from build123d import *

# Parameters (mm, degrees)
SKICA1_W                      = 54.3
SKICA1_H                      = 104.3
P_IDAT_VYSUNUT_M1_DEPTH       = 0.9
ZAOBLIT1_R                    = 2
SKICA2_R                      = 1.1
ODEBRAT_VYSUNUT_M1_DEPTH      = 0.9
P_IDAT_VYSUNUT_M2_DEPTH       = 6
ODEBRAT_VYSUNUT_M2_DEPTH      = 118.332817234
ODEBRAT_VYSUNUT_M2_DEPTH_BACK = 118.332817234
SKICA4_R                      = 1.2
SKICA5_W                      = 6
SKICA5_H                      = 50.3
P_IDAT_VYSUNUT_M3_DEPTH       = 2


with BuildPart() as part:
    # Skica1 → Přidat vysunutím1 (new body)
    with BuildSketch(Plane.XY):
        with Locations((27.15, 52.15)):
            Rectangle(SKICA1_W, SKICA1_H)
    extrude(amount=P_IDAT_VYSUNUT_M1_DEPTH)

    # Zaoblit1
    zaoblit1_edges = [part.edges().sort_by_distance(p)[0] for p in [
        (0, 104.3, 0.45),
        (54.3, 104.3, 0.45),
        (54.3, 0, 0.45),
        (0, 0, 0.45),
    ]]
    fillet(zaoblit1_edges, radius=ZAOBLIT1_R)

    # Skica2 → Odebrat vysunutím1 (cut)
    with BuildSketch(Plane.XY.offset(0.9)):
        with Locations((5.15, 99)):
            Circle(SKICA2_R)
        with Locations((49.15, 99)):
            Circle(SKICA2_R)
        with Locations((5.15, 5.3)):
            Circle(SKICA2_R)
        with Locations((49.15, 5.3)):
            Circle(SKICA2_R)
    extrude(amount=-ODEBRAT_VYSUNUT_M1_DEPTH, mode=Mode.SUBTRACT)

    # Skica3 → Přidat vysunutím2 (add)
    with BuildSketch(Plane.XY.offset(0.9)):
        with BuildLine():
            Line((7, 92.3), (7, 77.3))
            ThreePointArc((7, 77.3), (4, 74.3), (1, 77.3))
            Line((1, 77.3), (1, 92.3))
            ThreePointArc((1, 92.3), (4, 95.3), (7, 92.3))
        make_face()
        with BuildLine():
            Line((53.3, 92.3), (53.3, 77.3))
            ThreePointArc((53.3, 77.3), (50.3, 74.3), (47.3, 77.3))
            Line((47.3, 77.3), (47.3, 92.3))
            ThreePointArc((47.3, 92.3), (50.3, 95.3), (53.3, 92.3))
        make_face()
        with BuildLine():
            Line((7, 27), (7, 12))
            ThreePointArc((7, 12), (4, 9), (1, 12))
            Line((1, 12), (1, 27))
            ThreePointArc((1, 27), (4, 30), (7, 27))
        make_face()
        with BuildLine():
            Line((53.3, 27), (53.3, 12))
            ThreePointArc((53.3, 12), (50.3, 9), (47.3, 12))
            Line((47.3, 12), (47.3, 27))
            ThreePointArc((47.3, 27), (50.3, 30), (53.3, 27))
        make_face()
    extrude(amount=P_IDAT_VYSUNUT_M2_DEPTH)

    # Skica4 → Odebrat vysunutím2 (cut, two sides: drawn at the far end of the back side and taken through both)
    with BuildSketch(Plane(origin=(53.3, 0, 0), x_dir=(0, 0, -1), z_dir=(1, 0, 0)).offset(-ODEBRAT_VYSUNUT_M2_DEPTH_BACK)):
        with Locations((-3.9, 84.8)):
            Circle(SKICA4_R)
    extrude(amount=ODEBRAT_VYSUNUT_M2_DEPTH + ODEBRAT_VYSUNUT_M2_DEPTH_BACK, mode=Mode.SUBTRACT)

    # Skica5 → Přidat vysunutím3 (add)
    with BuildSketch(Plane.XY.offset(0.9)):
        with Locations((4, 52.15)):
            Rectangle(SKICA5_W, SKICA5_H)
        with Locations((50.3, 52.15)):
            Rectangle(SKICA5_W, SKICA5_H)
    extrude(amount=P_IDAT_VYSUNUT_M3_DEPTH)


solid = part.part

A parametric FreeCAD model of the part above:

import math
import FreeCAD as App
import Part
import Sketcher

V = App.Vector
Q = App.Units.Quantity


def edges_at(feature, points):
    """Names of the edges that pass closest to the given points."""
    edges = feature.Shape.Edges
    near = lambda p: min(range(len(edges)), key=lambda i: edges[i].distToShape(Part.Vertex(*p))[0])
    return sorted({f"Edge{near(p) + 1}" for p in points})


def add_polygon(sketch, points):
    """Adds a closed chain of lines whose ends are joined by coincident constraints."""
    first, n = sketch.GeometryCount, len(points)
    for a, b in zip(points, points[1:] + points[:1]):
        sketch.addGeometry(Part.LineSegment(App.Vector(*a, 0), App.Vector(*b, 0)), False)
    for i in range(n):
        sketch.addConstraint(Sketcher.Constraint("Coincident", first + i, 2, first + (i + 1) % n, 1))

doc = App.newDocument("Part")
body = doc.addObject("PartDesign::Body", "Body")

sketch1 = doc.addObject("Sketcher::SketchObject", "Sketch")
body.addObject(sketch1)
sketch1.AttachmentSupport = (doc.XY_Plane, [""])
sketch1.MapMode = "FlatFace"
add_polygon(sketch1, [(0, 104), (0, 0), (54, 0), (54, 104)])
sketch1.addConstraint([
    Sketcher.Constraint("Vertical", 0),
    Sketcher.Constraint("Horizontal", 1),
    Sketcher.Constraint("Vertical", 2),
    Sketcher.Constraint("Horizontal", 3),
    Sketcher.Constraint("Coincident", 0, 2, -1, 1),
    Sketcher.Constraint("DistanceX", 1, 1, 1, 2, Q("54.3 mm")),
    Sketcher.Constraint("DistanceY", 0, 2, 0, 1, Q("104.3 mm")),
])
pad1 = doc.addObject("PartDesign::Pad", "Pad")
body.addObject(pad1)
pad1.Profile = sketch1
pad1.Length = 0.9
doc.recompute()

fillet = doc.addObject("PartDesign::Fillet", "Fillet")
body.addObject(fillet)
fillet.Base = (pad1, edges_at(pad1, [
    (0, 104.3, 0.45),
    (54.3, 104.3, 0.45),
    (54.3, 0, 0.45),
    (0, 0, 0.45),
]))
fillet.Radius = 2

sketch2 = doc.addObject("Sketcher::SketchObject", "Sketch001")
body.addObject(sketch2)
sketch2.AttachmentSupport = (doc.XY_Plane, [""])
sketch2.MapMode = "FlatFace"
sketch2.AttachmentOffset = App.Placement(V(0, 0, 0.9), App.Rotation())
sketch2.addGeometry([
    Part.Circle(V(5.2, 99, 0), V(0, 0, 1), 1.1),
    Part.Circle(V(49.1, 99, 0), V(0, 0, 1), 1.1),
    Part.Circle(V(5.2, 5.3, 0), V(0, 0, 1), 1.1),
    Part.Circle(V(49.1, 5.3, 0), V(0, 0, 1), 1.1),
], False)
sketch2.addConstraint([
    Sketcher.Constraint("Equal", 0, 1),
    Sketcher.Constraint("Equal", 1, 2),
    Sketcher.Constraint("Equal", 2, 3),
    Sketcher.Constraint("Horizontal", 0, 3, 1, 3),
    Sketcher.Constraint("Horizontal", 2, 3, 3, 3),
    Sketcher.Constraint("Vertical", 0, 3, 2, 3),
    Sketcher.Constraint("Vertical", 1, 3, 3, 3),
    Sketcher.Constraint("Diameter", 0, Q("2.2 mm")),
    Sketcher.Constraint("DistanceY", -1, 1, 0, 3, Q("99 mm")),
    Sketcher.Constraint("DistanceX", 0, 3, 1, 3, Q("44 mm")),
    Sketcher.Constraint("DistanceY", -1, 1, 2, 3, Q("5.3 mm")),
    Sketcher.Constraint("DistanceX", -1, 1, 0, 3, Q("5.15 mm")),
])
pocket1 = doc.addObject("PartDesign::Pocket", "Pocket")
body.addObject(pocket1)
pocket1.Profile = sketch2
pocket1.Length = 0.9

sketch3 = doc.addObject("Sketcher::SketchObject", "Sketch002")
body.addObject(sketch3)
sketch3.AttachmentSupport = (doc.XY_Plane, [""])
sketch3.MapMode = "FlatFace"
sketch3.AttachmentOffset = App.Placement(V(0, 0, 0.9), App.Rotation())
sketch3.addGeometry([
    Part.LineSegment(V(7, 77.3, 0), V(7, 92.3, 0)),
    Part.ArcOfCircle(Part.Circle(V(4, 92.3, 0), V(0, 0, 1), 3), math.radians(0), math.radians(180)),
    Part.LineSegment(V(1, 92.3, 0), V(1, 77.3, 0)),
    Part.ArcOfCircle(Part.Circle(V(4, 77.3, 0), V(0, 0, 1), 3), math.radians(180), math.radians(360)),
    Part.LineSegment(V(53.3, 77.3, 0), V(53.3, 92.3, 0)),
    Part.ArcOfCircle(Part.Circle(V(50.3, 92.3, 0), V(0, 0, 1), 3), math.radians(0), math.radians(180)),
    Part.LineSegment(V(47.3, 92.3, 0), V(47.3, 77.3, 0)),
    Part.ArcOfCircle(Part.Circle(V(50.3, 77.3, 0), V(0, 0, 1), 3), math.radians(180), math.radians(360)),
    Part.LineSegment(V(7, 12, 0), V(7, 27, 0)),
    Part.ArcOfCircle(Part.Circle(V(4, 27, 0), V(0, 0, 1), 3), math.radians(0), math.radians(180)),
    Part.LineSegment(V(1, 27, 0), V(1, 12, 0)),
    Part.ArcOfCircle(Part.Circle(V(4, 12, 0), V(0, 0, 1), 3), math.radians(180), math.radians(360)),
    Part.LineSegment(V(53.3, 12, 0), V(53.3, 27, 0)),
    Part.ArcOfCircle(Part.Circle(V(50.3, 27, 0), V(0, 0, 1), 3), math.radians(0), math.radians(180)),
    Part.LineSegment(V(47.3, 27, 0), V(47.3, 12, 0)),
    Part.ArcOfCircle(Part.Circle(V(50.3, 12, 0), V(0, 0, 1), 3), math.radians(180), math.radians(360)),
], False)
sketch3.addConstraint([
    Sketcher.Constraint("Tangent", 0, 2, 1, 1),
    Sketcher.Constraint("Tangent", 1, 2, 2, 1),
    Sketcher.Constraint("Tangent", 2, 2, 3, 1),
    Sketcher.Constraint("Tangent", 3, 2, 0, 1),
    Sketcher.Constraint("Tangent", 4, 2, 5, 1),
    Sketcher.Constraint("Tangent", 5, 2, 6, 1),
    Sketcher.Constraint("Tangent", 6, 2, 7, 1),
    Sketcher.Constraint("Tangent", 7, 2, 4, 1),
    Sketcher.Constraint("Tangent", 8, 2, 9, 1),
    Sketcher.Constraint("Tangent", 9, 2, 10, 1),
    Sketcher.Constraint("Tangent", 10, 2, 11, 1),
    Sketcher.Constraint("Tangent", 11, 2, 8, 1),
    Sketcher.Constraint("Tangent", 12, 2, 13, 1),
    Sketcher.Constraint("Tangent", 13, 2, 14, 1),
    Sketcher.Constraint("Tangent", 14, 2, 15, 1),
    Sketcher.Constraint("Tangent", 15, 2, 12, 1),
    Sketcher.Constraint("Vertical", 0),
    Sketcher.Constraint("Vertical", 2),
    Sketcher.Constraint("Vertical", 4),
    Sketcher.Constraint("Vertical", 6),
    Sketcher.Constraint("Vertical", 8),
    Sketcher.Constraint("Vertical", 10),
    Sketcher.Constraint("Vertical", 12),
    Sketcher.Constraint("Vertical", 14),
    Sketcher.Constraint("Equal", 3, 5),
    Sketcher.Constraint("Equal", 7, 9),
    Sketcher.Constraint("Equal", 11, 13),
    Sketcher.Constraint("Horizontal", 1, 3, 5, 3),
    Sketcher.Constraint("Horizontal", 3, 3, 7, 3),
    Sketcher.Constraint("Horizontal", 9, 3, 13, 3),
    Sketcher.Constraint("Horizontal", 11, 3, 15, 3),
    Sketcher.Constraint("Vertical", 3, 3, 9, 3),
    Sketcher.Constraint("Vertical", 7, 3, 13, 3),
    Sketcher.Constraint("Equal", 6, 8),
    Sketcher.Constraint("Radius", 1, Q("3 mm")),
    Sketcher.Constraint("DistanceY", 0, 1, 0, 2, Q("15 mm")),
    Sketcher.Constraint("DistanceX", -1, 1, 1, 3, Q("4 mm")),
    Sketcher.Constraint("DistanceY", -1, 1, 9, 3, Q("27 mm")),
    Sketcher.Constraint("DistanceY", -1, 1, 1, 3, Q("92.3 mm")),
    Sketcher.Constraint("DistanceX", -1, 1, 5, 3, Q("50.3 mm")),
])
pad2 = doc.addObject("PartDesign::Pad", "Pad001")
body.addObject(pad2)
pad2.Profile = sketch3
pad2.Length = 6

sketch4 = doc.addObject("Sketcher::SketchObject", "Sketch003")
body.addObject(sketch4)
sketch4.AttachmentSupport = (doc.YZ_Plane, [""])
sketch4.MapMode = "FlatFace"
sketch4.AttachmentOffset = App.Placement(V(0, 0, 53.3), App.Rotation())
sketch4.addGeometry(Part.Circle(V(84.8, 3.9, 0), V(0, 0, 1), 1.2), False)
sketch4.addConstraint([
    Sketcher.Constraint("Diameter", 0, Q("2.4 mm")),
    Sketcher.Constraint("DistanceX", -1, 1, 0, 3, Q("84.8 mm")),
    Sketcher.Constraint("DistanceY", -1, 1, 0, 3, Q("3.9 mm")),
])
pocket2 = doc.addObject("PartDesign::Pocket", "Pocket001")
body.addObject(pocket2)
pocket2.Profile = sketch4
pocket2.Type = "ThroughAll"
pocket2.Midplane = True

sketch5 = doc.addObject("Sketcher::SketchObject", "Sketch004")
body.addObject(sketch5)
sketch5.AttachmentSupport = (doc.XY_Plane, [""])
sketch5.MapMode = "FlatFace"
sketch5.AttachmentOffset = App.Placement(V(0, 0, 0.9), App.Rotation())
add_polygon(sketch5, [(1, 77), (1, 27), (7, 27), (7, 77)])
add_polygon(sketch5, [(47, 77), (47, 27), (53, 27), (53, 77)])
sketch5.addConstraint([
    Sketcher.Constraint("Vertical", 0),
    Sketcher.Constraint("Horizontal", 1),
    Sketcher.Constraint("Vertical", 2),
    Sketcher.Constraint("Horizontal", 3),
    Sketcher.Constraint("Vertical", 4),
    Sketcher.Constraint("Horizontal", 5),
    Sketcher.Constraint("Vertical", 6),
    Sketcher.Constraint("Horizontal", 7),
    Sketcher.Constraint("Horizontal", 1, 2, 4, 2),
    Sketcher.Constraint("Horizontal", 3, 2, 6, 2),
    Sketcher.Constraint("Equal", 3, 5),
    Sketcher.Constraint("DistanceX", 1, 1, 1, 2, Q("6 mm")),
    Sketcher.Constraint("DistanceY", 0, 2, 0, 1, Q("50.3 mm")),
    Sketcher.Constraint("DistanceX", -1, 1, 0, 2, Q("1 mm")),
    Sketcher.Constraint("DistanceY", -1, 1, 0, 2, Q("27 mm")),
    Sketcher.Constraint("DistanceX", -1, 1, 4, 2, Q("47.3 mm")),
])
pad3 = doc.addObject("PartDesign::Pad", "Pad002")
body.addObject(pad3)
pad3.Profile = sketch5
pad3.Length = 2

doc.recompute()
